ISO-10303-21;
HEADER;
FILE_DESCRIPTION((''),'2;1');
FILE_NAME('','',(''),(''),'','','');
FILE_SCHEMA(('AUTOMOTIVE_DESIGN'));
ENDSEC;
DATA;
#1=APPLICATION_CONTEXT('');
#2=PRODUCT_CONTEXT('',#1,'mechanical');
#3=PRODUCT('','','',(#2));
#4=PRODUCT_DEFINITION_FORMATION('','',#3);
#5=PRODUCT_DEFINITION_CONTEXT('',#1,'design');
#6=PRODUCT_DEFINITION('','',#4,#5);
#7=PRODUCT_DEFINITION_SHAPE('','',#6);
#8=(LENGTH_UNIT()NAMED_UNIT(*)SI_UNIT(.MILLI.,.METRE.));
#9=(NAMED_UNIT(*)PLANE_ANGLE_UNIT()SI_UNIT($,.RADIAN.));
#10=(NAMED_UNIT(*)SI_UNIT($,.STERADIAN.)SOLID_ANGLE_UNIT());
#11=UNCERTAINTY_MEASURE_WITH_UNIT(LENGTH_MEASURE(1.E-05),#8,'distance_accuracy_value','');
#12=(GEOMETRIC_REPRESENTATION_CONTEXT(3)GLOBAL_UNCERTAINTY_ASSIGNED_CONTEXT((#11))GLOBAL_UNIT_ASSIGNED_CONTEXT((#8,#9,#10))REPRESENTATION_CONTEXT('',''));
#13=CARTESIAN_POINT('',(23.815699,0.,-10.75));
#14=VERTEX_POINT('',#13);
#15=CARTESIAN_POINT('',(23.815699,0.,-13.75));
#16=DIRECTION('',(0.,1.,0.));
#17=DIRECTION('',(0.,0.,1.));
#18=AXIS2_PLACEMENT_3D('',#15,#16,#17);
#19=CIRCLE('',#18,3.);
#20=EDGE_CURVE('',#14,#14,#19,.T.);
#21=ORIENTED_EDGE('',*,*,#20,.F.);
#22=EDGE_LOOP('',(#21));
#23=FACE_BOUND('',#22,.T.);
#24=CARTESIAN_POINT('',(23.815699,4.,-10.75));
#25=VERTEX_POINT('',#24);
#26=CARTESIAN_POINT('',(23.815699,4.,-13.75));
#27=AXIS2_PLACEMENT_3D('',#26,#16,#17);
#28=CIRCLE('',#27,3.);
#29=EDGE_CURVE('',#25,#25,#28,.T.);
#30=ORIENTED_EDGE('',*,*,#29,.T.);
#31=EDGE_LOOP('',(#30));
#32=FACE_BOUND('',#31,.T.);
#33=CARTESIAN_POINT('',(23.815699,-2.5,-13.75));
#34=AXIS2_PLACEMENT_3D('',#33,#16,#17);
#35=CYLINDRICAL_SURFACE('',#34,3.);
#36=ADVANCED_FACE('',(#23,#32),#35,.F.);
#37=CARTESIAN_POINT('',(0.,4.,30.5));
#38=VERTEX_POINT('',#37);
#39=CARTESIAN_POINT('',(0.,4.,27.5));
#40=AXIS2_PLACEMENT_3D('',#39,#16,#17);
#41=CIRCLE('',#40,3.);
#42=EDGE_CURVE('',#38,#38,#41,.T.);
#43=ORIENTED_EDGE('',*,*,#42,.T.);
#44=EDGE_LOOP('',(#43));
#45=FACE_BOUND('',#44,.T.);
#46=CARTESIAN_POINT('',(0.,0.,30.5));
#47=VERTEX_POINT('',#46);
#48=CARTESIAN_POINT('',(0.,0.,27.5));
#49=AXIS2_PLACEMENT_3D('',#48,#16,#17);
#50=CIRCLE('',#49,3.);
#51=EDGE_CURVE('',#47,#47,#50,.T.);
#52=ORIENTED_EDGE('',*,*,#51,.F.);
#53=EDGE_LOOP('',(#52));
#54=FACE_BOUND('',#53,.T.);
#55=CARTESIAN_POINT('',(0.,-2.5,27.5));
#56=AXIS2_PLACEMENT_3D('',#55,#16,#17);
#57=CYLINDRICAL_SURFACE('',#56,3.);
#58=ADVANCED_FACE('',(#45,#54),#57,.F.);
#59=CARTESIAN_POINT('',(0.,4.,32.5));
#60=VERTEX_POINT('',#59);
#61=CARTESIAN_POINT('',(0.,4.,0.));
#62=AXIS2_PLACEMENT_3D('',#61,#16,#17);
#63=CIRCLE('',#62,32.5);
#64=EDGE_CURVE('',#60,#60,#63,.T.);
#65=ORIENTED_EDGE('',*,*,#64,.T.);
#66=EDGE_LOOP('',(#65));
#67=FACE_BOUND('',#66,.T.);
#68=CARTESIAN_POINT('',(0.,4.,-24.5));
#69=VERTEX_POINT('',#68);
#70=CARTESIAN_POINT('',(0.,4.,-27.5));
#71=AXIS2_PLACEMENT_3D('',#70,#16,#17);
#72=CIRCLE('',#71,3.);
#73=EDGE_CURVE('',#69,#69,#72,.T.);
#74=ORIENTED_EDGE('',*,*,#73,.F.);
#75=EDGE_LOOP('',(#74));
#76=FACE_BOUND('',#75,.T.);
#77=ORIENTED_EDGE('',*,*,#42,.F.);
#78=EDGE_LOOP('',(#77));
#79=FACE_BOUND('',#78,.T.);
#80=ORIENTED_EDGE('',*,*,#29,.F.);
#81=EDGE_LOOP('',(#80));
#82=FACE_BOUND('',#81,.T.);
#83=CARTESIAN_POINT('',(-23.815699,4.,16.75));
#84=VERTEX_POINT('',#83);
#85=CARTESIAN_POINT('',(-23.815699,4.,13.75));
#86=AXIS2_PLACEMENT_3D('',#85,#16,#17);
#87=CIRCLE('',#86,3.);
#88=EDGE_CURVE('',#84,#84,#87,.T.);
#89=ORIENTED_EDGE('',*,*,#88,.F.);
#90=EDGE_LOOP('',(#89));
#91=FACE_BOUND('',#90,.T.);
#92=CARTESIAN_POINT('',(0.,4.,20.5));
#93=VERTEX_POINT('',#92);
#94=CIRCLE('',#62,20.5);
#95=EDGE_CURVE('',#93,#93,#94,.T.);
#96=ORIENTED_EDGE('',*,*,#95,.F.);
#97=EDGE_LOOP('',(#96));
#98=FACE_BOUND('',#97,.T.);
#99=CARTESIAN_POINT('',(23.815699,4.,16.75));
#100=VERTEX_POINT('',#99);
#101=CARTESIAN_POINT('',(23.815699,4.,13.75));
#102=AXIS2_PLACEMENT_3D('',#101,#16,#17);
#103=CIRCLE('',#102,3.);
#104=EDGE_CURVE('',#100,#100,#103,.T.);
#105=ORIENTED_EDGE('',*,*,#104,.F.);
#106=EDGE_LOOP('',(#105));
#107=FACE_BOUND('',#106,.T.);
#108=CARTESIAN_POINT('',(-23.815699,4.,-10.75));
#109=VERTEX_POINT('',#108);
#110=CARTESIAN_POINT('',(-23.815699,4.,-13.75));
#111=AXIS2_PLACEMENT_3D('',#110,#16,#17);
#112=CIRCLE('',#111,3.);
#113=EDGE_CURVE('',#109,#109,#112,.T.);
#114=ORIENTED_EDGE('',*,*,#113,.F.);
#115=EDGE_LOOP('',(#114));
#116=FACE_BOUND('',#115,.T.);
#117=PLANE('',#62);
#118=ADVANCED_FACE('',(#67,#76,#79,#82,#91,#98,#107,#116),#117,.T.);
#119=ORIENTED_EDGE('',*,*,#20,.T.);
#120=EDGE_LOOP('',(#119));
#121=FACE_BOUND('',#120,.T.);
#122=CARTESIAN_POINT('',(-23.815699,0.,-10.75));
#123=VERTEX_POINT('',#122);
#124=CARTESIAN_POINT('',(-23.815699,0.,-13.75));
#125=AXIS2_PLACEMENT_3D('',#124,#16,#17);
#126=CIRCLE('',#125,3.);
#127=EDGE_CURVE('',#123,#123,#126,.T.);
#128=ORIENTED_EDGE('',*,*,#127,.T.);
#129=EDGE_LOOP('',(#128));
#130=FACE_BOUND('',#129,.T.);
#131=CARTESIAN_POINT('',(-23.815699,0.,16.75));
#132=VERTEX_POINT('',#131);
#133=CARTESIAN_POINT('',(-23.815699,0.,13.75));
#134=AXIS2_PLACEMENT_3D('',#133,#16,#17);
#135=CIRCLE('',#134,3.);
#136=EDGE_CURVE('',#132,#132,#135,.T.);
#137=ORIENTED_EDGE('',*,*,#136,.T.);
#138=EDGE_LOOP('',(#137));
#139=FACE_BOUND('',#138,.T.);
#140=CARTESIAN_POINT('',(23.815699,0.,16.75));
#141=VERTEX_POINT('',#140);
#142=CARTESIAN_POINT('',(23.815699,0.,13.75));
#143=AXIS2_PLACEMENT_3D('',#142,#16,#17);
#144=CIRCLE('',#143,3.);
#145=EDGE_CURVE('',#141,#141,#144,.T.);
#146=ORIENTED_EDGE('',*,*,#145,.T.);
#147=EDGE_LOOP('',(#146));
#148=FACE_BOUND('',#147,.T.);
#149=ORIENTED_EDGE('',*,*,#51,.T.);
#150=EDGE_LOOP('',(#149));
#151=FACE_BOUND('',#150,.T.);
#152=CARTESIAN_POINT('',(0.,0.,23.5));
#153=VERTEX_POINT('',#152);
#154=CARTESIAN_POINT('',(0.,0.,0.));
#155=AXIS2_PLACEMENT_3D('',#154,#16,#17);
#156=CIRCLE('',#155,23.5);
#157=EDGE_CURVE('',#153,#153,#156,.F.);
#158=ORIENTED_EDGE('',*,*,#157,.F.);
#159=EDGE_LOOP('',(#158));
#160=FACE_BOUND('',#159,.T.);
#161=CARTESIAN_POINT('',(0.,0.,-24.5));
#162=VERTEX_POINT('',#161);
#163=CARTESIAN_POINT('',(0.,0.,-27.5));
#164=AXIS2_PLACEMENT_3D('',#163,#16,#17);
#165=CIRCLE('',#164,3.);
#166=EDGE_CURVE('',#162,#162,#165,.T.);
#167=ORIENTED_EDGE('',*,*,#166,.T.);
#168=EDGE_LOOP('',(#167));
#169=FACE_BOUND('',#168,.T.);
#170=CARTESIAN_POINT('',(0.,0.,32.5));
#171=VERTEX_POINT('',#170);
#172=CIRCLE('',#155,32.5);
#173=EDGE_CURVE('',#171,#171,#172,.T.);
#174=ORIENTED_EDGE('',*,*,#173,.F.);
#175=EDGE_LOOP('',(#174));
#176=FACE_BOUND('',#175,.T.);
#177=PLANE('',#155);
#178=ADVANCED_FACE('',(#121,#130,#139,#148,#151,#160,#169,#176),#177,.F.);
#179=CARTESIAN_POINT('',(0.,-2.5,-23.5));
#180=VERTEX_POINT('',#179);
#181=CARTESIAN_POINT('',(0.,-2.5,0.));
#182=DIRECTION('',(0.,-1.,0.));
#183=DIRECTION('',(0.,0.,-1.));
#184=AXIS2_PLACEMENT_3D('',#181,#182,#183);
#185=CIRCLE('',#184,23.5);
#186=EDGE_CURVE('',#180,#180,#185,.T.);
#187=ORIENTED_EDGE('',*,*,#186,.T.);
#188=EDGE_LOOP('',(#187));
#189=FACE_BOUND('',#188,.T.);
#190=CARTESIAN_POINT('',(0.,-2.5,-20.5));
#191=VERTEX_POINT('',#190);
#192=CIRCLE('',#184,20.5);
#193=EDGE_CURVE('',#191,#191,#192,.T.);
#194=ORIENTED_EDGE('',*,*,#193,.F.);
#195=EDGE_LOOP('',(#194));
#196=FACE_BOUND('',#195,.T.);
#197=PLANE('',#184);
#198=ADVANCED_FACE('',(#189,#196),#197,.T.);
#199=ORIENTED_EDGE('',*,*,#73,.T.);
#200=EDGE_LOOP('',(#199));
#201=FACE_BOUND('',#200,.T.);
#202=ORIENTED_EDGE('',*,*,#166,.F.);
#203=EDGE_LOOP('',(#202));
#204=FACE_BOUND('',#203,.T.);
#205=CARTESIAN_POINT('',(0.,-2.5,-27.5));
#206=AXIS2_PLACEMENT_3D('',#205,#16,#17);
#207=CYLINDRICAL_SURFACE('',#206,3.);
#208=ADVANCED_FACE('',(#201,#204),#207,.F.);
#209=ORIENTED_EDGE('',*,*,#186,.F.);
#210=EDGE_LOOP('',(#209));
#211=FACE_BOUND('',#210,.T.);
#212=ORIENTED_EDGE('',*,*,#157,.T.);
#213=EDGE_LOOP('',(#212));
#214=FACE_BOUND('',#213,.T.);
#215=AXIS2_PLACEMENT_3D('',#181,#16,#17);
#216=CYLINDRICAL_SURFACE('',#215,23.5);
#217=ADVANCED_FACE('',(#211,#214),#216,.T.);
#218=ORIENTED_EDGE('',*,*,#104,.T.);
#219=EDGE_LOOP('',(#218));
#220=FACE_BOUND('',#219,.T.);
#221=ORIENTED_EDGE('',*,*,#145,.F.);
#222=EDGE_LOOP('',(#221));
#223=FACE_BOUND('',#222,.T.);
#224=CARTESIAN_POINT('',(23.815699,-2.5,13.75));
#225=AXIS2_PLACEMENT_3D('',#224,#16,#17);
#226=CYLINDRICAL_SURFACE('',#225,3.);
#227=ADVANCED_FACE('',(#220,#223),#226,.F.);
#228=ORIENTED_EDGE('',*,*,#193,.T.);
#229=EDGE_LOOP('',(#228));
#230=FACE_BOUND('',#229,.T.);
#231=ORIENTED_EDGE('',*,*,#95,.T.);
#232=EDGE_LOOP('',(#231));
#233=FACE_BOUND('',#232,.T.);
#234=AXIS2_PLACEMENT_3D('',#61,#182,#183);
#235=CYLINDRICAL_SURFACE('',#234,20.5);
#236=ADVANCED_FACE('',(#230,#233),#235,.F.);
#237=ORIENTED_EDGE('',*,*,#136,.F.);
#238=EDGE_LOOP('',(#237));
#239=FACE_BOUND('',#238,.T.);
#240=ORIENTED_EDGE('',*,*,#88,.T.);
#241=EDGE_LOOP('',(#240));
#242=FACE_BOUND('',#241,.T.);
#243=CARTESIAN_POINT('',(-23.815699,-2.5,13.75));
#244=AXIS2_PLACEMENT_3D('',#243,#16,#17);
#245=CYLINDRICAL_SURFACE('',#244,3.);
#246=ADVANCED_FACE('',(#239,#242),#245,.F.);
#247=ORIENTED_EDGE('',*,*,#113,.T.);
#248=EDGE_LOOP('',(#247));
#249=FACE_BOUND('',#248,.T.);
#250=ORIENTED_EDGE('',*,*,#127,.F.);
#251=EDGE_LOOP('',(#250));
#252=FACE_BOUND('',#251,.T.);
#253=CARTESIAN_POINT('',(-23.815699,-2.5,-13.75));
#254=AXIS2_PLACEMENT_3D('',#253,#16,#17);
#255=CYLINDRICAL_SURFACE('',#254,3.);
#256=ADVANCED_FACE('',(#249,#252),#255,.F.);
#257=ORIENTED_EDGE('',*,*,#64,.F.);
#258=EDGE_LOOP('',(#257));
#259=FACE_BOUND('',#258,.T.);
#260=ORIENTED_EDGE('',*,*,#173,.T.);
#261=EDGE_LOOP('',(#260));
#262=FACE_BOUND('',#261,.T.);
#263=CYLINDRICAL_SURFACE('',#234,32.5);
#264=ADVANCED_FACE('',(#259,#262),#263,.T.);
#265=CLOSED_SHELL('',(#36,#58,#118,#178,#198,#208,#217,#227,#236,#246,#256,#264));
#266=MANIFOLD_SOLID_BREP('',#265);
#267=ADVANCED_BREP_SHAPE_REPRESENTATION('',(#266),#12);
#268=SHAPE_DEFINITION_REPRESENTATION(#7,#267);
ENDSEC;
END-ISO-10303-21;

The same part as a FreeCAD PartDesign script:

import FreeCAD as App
import Part
import Sketcher

V = App.Vector
Q = App.Units.Quantity

doc = App.newDocument("Part")
params = doc.addObject("Spreadsheet::Sheet", "Params")
for row, (alias, value) in enumerate([
    ("sketch1_diameter", "65 mm"),
    ("sketch1_diameter2", "41 mm"),
    ("pad1_length", "4 mm"),
    ("sketch2_diameter", "47 mm"),
    ("sketch2_diameter2", "41 mm"),
    ("pad2_length", "2.5 mm"),
    ("sketch3_diameter", "6 mm"),
], start=1):
    params.set(f"A{row}", alias)
    params.set(f"B{row}", "=" + value)
    params.setAlias(f"B{row}", alias)

body = doc.addObject("PartDesign::Body", "Body")

# Sketch on XZ plane
sketch1 = body.newObject("Sketcher::SketchObject", "Sketch")
sketch1.AttachmentSupport = (doc.getObject("XZ_Plane"), [""])
sketch1.MapMode = "FlatFace"
sketch1.addGeometry([
    Part.Circle(V(0, 0, 0), V(0, 0, 1), 32),
    Part.Circle(V(0, 0, 0), V(0, 0, 1), 20),
], False)
sketch1.addConstraint([
    Sketcher.Constraint("Coincident", 0, 3, -1, 1),
    Sketcher.Constraint("Coincident", 1, 3, -1, 1),
    Sketcher.Constraint("Diameter", 0, Q("65 mm")),
    Sketcher.Constraint("Diameter", 1, Q("41 mm")),
])
sketch1.setExpression("Constraints[2]", "Params.sketch1_diameter")
sketch1.setExpression("Constraints[3]", "Params.sketch1_diameter2")
pad1 = body.newObject("PartDesign::Pad", "Pad")
pad1.Profile = sketch1
pad1.setExpression("Length", "Params.pad1_length")
pad1.Reversed = True

# Sketch on XZ plane
sketch2 = body.newObject("Sketcher::SketchObject", "Sketch001")
sketch2.AttachmentSupport = (doc.getObject("XZ_Plane"), [""])
sketch2.MapMode = "FlatFace"
sketch2.addGeometry([
    Part.Circle(V(0, 0, 0), V(0, 0, 1), 24),
    Part.Circle(V(0, 0, 0), V(0, 0, 1), 20),
], False)
sketch2.addConstraint([
    Sketcher.Constraint("Coincident", 0, 3, -1, 1),
    Sketcher.Constraint("Coincident", 1, 3, -1, 1),
    Sketcher.Constraint("Diameter", 0, Q("47 mm")),
    Sketcher.Constraint("Diameter", 1, Q("41 mm")),
])
sketch2.setExpression("Constraints[2]", "Params.sketch2_diameter")
sketch2.setExpression("Constraints[3]", "Params.sketch2_diameter2")
pad2 = body.newObject("PartDesign::Pad", "Pad001")
pad2.Profile = sketch2
pad2.setExpression("Length", "Params.pad2_length")

# Sketch on XZ plane
sketch3 = body.newObject("Sketcher::SketchObject", "Sketch002")
sketch3.AttachmentSupport = (doc.getObject("XZ_Plane"), [""])
sketch3.MapMode = "FlatFace"
sketch3.AttachmentOffset = App.Placement(V(0, 0, -4), App.Rotation())
sketch3.addGeometry([
    Part.Circle(V(0, -27.5, 0), V(0, 0, 1), 3),  # 0
    Part.Circle(V(23.8, -13.8, 0), V(0, 0, 1), 3),  # 1
    Part.Circle(V(23.8, 13.8, 0), V(0, 0, 1), 3),  # 2
    Part.Circle(V(0, 27.5, 0), V(0, 0, 1), 3),  # 3
    Part.Circle(V(-23.8, 13.8, 0), V(0, 0, 1), 3),  # 4
    Part.Circle(V(-23.8, -13.8, 0), V(0, 0, 1), 3),  # 5
], False)
sketch3.addConstraint([
    Sketcher.Constraint("Equal", 0, 1),
    Sketcher.Constraint("Equal", 1, 2),
    Sketcher.Constraint("Equal", 2, 3),
    Sketcher.Constraint("Equal", 3, 4),
    Sketcher.Constraint("Equal", 4, 5),
    Sketcher.Constraint("Symmetric", 0, 3, 3, 3, -1, 1),
    Sketcher.Constraint("Symmetric", 1, 3, 4, 3, -1, 1),
    Sketcher.Constraint("Symmetric", 2, 3, 5, 3, -1, 1),
    Sketcher.Constraint("Symmetric", 2, 3, 4, 3, -2),
    Sketcher.Constraint("PointOnObject", 0, 3, -2),
    Sketcher.Constraint("Diameter", 0, Q("6 mm")),
    Sketcher.Constraint("DistanceY", 0, 3, 3, 3, Q("55 mm")),
    Sketcher.Constraint("DistanceY", 1, 3, 2, 3, Q("27.5 mm")),
    Sketcher.Constraint("DistanceX", -1, 1, 1, 3, Q("23.815699 mm")),
])
sketch3.setExpression("Constraints[10]", "Params.sketch3_diameter")
pocket1 = body.newObject("PartDesign::Pocket", "Pocket")
pocket1.Profile = sketch3
pocket1.Type = "ThroughAll"
pocket1.Midplane = True

doc.recompute()
